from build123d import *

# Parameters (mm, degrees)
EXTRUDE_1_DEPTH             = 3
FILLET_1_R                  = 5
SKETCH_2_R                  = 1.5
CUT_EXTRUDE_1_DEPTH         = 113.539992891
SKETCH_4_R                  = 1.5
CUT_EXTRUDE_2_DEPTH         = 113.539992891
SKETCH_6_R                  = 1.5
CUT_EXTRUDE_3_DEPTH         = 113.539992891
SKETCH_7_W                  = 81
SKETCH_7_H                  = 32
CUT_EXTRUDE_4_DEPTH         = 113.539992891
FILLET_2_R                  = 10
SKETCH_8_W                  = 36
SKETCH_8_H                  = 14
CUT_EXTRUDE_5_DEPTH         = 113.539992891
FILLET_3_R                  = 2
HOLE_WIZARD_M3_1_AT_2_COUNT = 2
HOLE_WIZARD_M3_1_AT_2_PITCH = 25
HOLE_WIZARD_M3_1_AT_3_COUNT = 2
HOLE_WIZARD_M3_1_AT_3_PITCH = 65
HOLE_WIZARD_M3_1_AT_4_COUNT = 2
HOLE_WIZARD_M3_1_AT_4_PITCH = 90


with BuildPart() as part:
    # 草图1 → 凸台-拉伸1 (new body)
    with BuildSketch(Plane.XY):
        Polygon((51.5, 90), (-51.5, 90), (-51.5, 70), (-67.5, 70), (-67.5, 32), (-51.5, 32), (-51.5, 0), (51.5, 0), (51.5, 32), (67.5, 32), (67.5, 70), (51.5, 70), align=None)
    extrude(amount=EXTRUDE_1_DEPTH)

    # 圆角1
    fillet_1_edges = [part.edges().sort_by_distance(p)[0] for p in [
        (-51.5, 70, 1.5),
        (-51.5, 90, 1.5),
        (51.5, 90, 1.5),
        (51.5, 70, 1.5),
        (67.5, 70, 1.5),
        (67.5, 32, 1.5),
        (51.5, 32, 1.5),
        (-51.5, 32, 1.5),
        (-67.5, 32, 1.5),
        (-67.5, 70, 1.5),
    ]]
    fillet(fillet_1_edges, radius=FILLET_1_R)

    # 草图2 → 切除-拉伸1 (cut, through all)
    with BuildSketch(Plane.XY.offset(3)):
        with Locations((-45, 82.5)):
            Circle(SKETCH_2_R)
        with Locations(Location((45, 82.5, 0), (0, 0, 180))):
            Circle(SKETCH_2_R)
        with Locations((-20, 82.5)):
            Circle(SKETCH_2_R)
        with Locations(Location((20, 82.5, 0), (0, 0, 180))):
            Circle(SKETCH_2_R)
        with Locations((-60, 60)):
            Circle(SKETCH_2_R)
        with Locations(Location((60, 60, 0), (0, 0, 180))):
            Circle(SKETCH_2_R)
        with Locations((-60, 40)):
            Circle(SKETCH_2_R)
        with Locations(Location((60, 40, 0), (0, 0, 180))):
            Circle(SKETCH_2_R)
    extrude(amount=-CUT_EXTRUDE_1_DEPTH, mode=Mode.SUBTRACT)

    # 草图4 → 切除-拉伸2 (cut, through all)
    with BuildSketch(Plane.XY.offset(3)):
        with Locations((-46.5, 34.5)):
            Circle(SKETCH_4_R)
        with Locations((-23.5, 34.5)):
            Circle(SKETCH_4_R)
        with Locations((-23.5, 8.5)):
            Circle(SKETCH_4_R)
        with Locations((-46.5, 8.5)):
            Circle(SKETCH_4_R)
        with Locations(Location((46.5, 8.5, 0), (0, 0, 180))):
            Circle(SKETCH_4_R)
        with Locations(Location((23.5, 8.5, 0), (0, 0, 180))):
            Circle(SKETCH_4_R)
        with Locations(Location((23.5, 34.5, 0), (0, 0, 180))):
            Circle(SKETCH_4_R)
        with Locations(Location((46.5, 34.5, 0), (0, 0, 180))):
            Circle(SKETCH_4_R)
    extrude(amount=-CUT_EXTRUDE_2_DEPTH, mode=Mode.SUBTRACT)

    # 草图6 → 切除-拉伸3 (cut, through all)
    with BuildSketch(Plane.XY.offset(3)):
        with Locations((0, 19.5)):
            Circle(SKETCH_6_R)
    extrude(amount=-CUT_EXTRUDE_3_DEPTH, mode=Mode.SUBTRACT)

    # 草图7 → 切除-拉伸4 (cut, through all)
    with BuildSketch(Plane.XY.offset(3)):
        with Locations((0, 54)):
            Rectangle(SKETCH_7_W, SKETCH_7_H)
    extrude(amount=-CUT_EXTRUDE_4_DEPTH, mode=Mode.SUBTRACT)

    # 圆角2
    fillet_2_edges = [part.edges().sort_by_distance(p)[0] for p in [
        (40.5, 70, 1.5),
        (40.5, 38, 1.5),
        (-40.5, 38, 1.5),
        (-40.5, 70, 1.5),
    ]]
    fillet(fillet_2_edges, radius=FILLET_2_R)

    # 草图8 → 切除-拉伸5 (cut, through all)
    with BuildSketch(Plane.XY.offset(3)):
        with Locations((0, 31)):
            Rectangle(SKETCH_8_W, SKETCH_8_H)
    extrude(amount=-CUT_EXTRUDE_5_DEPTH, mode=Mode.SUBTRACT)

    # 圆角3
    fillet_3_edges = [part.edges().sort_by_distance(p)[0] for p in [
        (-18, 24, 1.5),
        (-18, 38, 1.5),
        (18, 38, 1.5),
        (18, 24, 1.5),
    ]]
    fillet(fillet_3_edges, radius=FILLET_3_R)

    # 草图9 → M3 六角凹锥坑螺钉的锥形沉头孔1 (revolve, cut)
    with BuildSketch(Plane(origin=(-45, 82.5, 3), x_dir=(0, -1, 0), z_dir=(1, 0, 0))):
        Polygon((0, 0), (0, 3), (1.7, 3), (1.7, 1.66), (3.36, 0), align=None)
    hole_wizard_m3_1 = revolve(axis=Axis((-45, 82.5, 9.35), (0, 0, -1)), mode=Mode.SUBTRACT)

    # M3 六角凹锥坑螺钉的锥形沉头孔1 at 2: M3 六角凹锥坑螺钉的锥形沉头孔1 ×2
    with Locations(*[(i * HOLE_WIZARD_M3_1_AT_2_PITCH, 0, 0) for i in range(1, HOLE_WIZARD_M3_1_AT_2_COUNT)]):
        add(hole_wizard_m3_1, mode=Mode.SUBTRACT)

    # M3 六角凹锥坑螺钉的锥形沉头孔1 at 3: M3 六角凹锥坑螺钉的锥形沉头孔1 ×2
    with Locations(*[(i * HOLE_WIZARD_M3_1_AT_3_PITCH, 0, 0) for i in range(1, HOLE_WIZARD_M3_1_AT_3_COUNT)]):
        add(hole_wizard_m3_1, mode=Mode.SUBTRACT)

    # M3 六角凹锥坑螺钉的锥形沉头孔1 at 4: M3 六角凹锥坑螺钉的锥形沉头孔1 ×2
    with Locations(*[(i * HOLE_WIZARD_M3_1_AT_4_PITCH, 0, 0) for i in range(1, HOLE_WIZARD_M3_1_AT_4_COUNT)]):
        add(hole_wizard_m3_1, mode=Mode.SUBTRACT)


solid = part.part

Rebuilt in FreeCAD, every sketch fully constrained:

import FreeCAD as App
import Part
import Sketcher
from FreeCAD import Vector
Q = App.Units.Quantity


def edges_at(feature, points):
    """Names of the edges that pass closest to the given points."""
    edges = feature.Shape.Edges
    near = lambda p: min(range(len(edges)), key=lambda i: edges[i].distToShape(Part.Vertex(*p))[0])
    return sorted({f"Edge{near(p) + 1}" for p in points})


def add_polygon(sketch, points):
    """Adds a closed chain of lines whose ends are joined by coincident constraints."""
    first, n = sketch.GeometryCount, len(points)
    for a, b in zip(points, points[1:] + points[:1]):
        sketch.addGeometry(Part.LineSegment(App.Vector(*a, 0), App.Vector(*b, 0)), False)
    for i in range(n):
        sketch.addConstraint(Sketcher.Constraint("Coincident", first + i, 2, first + (i + 1) % n, 1))

doc = App.newDocument("Part")
params = doc.addObject("Spreadsheet::Sheet", "Params")
for row, (alias, value) in enumerate([
    ("sketch1_width", "103 mm"),
    ("sketch1_width2", "16 mm"),
    ("sketch1_height", "20 mm"),
    ("sketch1_height2", "38 mm"),
    ("sketch1_height3", "32 mm"),
    ("pad1_length", "3 mm"),
    ("fillet_radius", "5 mm"),
    ("sketch2_diameter", "3 mm"),
    ("sketch3_diameter", "3 mm"),
    ("sketch4_diameter", "3 mm"),
    ("sketch5_width", "81 mm"),
    ("sketch5_height", "32 mm"),
    ("fillet2_radius", "10 mm"),
    ("sketch6_width", "36 mm"),
    ("sketch6_height", "14 mm"),
    ("fillet3_radius", "2 mm"),
    ("sketch7_height", "3 mm"),
    ("sketch7_width", "1.7 mm"),
    ("sketch7_width2", "3.36 mm"),
    ("groove_angle", "360 deg"),
    ("linearpattern_pitch", "25 mm"),
    ("linearpattern2_pitch", "65 mm"),
    ("linearpattern3_pitch", "90 mm"),
], start=1):
    params.set(f"A{row}", alias)
    params.set(f"B{row}", "=" + value)
    params.setAlias(f"B{row}", alias)

body = doc.addObject("PartDesign::Body", "Body")

sketch1 = body.newObject("Sketcher::SketchObject", "Sketch")
sketch1.AttachmentSupport = (doc.getObject("XY_Plane"), [""])
sketch1.MapMode = "FlatFace"
add_polygon(sketch1, [(51.5, 90), (-51.5, 90), (-51.5, 70), (-67.5, 70), (-67.5, 32), (-51.5, 32), (-51.5, 0), (51.5, 0), (51.5, 32), (67.5, 32), (67.5, 70), (51.5, 70)])
sketch1.addConstraint(Sketcher.Constraint("Horizontal", 0))
sketch1.addConstraint(Sketcher.Constraint("Vertical", 1))
sketch1.addConstraint(Sketcher.Constraint("Horizontal", 2))
sketch1.addConstraint(Sketcher.Constraint("Vertical", 3))
sketch1.addConstraint(Sketcher.Constraint("Horizontal", 4))
sketch1.addConstraint(Sketcher.Constraint("Vertical", 5))
sketch1.addConstraint(Sketcher.Constraint("Horizontal", 6))
sketch1.addConstraint(Sketcher.Constraint("Vertical", 7))
sketch1.addConstraint(Sketcher.Constraint("Horizontal", 8))
sketch1.addConstraint(Sketcher.Constraint("Vertical", 9))
sketch1.addConstraint(Sketcher.Constraint("Horizontal", 10))
sketch1.addConstraint(Sketcher.Constraint("Vertical", 11))
sketch1.addConstraint(Sketcher.Constraint("Symmetric", 5, 2, 6, 2, -1, 1))
sketch1.addConstraint(Sketcher.Constraint("Symmetric", 3, 2, 8, 2, -2))
sketch1.addConstraint(Sketcher.Constraint("Symmetric", 1, 2, 10, 2, -2))
sketch1.addConstraint(Sketcher.Constraint("Vertical", 1, 2, 4, 2))
sketch1.addConstraint(Sketcher.Constraint("DistanceX", 0, 2, 0, 1, 103.0))
sketch1.addConstraint(Sketcher.Constraint("DistanceX", 2, 2, 2, 1, 16.0))
sketch1.addConstraint(Sketcher.Constraint("DistanceY", 1, 2, 1, 1, 20.0))
sketch1.addConstraint(Sketcher.Constraint("DistanceY", 3, 2, 3, 1, 38.0))
sketch1.addConstraint(Sketcher.Constraint("DistanceY", 5, 2, 5, 1, 32.0))
sketch1.setExpression("Constraints[28]", "Params.sketch1_width")
sketch1.setExpression("Constraints[29]", "Params.sketch1_width2")
sketch1.setExpression("Constraints[30]", "Params.sketch1_height")
sketch1.setExpression("Constraints[31]", "Params.sketch1_height2")
sketch1.setExpression("Constraints[32]", "Params.sketch1_height3")
pad1 = body.newObject("PartDesign::Pad", "Pad")
pad1.Profile = sketch1
pad1.setExpression("Length", "Params.pad1_length")
doc.recompute()

fillet = body.newObject("PartDesign::Fillet", "Fillet")
fillet.Base = (pad1, edges_at(pad1, [
    (-51.5, 70, 1.5),
    (-51.5, 90, 1.5),
    (51.5, 90, 1.5),
    (51.5, 70, 1.5),
    (67.5, 70, 1.5),
    (67.5, 32, 1.5),
    (51.5, 32, 1.5),
    (-51.5, 32, 1.5),
    (-67.5, 32, 1.5),
    (-67.5, 70, 1.5),
]))
fillet.setExpression("Radius", "Params.fillet_radius")

sketch2 = body.newObject("Sketcher::SketchObject", "Sketch001")
sketch2.AttachmentSupport = (doc.getObject("XY_Plane"), [""])
sketch2.MapMode = "FlatFace"
sketch2.AttachmentOffset = App.Placement(Vector(0, 0, 3), App.Rotation())
sketch2.addGeometry(Part.Circle(Vector(-45, 82.5, 0), Vector(0, 0, 1), 1.5), False)
sketch2.addGeometry(Part.Circle(Vector(45, 82.5, 0), Vector(0, 0, 1), 1.5), False)
sketch2.addGeometry(Part.Circle(Vector(-20, 82.5, 0), Vector(0, 0, 1), 1.5), False)
sketch2.addGeometry(Part.Circle(Vector(20, 82.5, 0), Vector(0, 0, 1), 1.5), False)
sketch2.addGeometry(Part.Circle(Vector(-60, 60, 0), Vector(0, 0, 1), 1.5), False)
sketch2.addGeometry(Part.Circle(Vector(60, 60, 0), Vector(0, 0, 1), 1.5), False)
sketch2.addGeometry(Part.Circle(Vector(-60, 40, 0), Vector(0, 0, 1), 1.5), False)
sketch2.addGeometry(Part.Circle(Vector(60, 40, 0), Vector(0, 0, 1), 1.5), False)
sketch2.addConstraint(Sketcher.Constraint("Equal", 0, 1))
sketch2.addConstraint(Sketcher.Constraint("Equal", 1, 2))
sketch2.addConstraint(Sketcher.Constraint("Equal", 2, 3))
sketch2.addConstraint(Sketcher.Constraint("Equal", 3, 4))
sketch2.addConstraint(Sketcher.Constraint("Equal", 4, 5))
sketch2.addConstraint(Sketcher.Constraint("Equal", 5, 6))
sketch2.addConstraint(Sketcher.Constraint("Equal", 6, 7))
sketch2.addConstraint(Sketcher.Constraint("Symmetric", 0, 3, 1, 3, -2))
sketch2.addConstraint(Sketcher.Constraint("Symmetric", 2, 3, 3, 3, -2))
sketch2.addConstraint(Sketcher.Constraint("Symmetric", 4, 3, 5, 3, -2))
sketch2.addConstraint(Sketcher.Constraint("Symmetric", 6, 3, 7, 3, -2))
sketch2.addConstraint(Sketcher.Constraint("Horizontal", 1, 3, 2, 3))
sketch2.addConstraint(Sketcher.Constraint("Vertical", 4, 3, 6, 3))
sketch2.addConstraint(Sketcher.Constraint("Diameter", 0, 3.0))
sketch2.addConstraint(Sketcher.Constraint("DistanceX", 0, 3, -1, 1, 45.0))
sketch2.addConstraint(Sketcher.Constraint("DistanceX", 2, 3, -1, 1, 20.0))
sketch2.addConstraint(Sketcher.Constraint("DistanceX", 4, 3, -1, 1, 60.0))
sketch2.addConstraint(Sketcher.Constraint("DistanceY", -1, 1, 4, 3, 60.0))
sketch2.addConstraint(Sketcher.Constraint("DistanceY", -1, 1, 6, 3, 40.0))
sketch2.addConstraint(Sketcher.Constraint("DistanceY", -1, 1, 0, 3, 82.5))
sketch2.setExpression("Constraints[13]", "Params.sketch2_diameter")
pocket1 = body.newObject("PartDesign::Pocket", "Pocket")
pocket1.Profile = sketch2
pocket1.Type = "ThroughAll"

sketch3 = body.newObject("Sketcher::SketchObject", "Sketch002")
sketch3.AttachmentSupport = (doc.getObject("XY_Plane"), [""])
sketch3.MapMode = "FlatFace"
sketch3.AttachmentOffset = App.Placement(Vector(0, 0, 3), App.Rotation())
sketch3.addGeometry(Part.Circle(Vector(-46.5, 34.5, 0), Vector(0, 0, 1), 1.5), False)
sketch3.addGeometry(Part.Circle(Vector(-23.5, 34.5, 0), Vector(0, 0, 1), 1.5), False)
sketch3.addGeometry(Part.Circle(Vector(-23.5, 8.5, 0), Vector(0, 0, 1), 1.5), False)
sketch3.addGeometry(Part.Circle(Vector(-46.5, 8.5, 0), Vector(0, 0, 1), 1.5), False)
sketch3.addGeometry(Part.Circle(Vector(46.5, 8.5, 0), Vector(0, 0, 1), 1.5), False)
sketch3.addGeometry(Part.Circle(Vector(23.5, 8.5, 0), Vector(0, 0, 1), 1.5), False)
sketch3.addGeometry(Part.Circle(Vector(23.5, 34.5, 0), Vector(0, 0, 1), 1.5), False)
sketch3.addGeometry(Part.Circle(Vector(46.5, 34.5, 0), Vector(0, 0, 1), 1.5), False)
sketch3.addConstraint(Sketcher.Constraint("Equal", 0, 1))
sketch3.addConstraint(Sketcher.Constraint("Equal", 1, 2))
sketch3.addConstraint(Sketcher.Constraint("Equal", 2, 3))
sketch3.addConstraint(Sketcher.Constraint("Equal", 3, 4))
sketch3.addConstraint(Sketcher.Constraint("Equal", 4, 5))
sketch3.addConstraint(Sketcher.Constraint("Equal", 5, 6))
sketch3.addConstraint(Sketcher.Constraint("Equal", 6, 7))
sketch3.addConstraint(Sketcher.Constraint("Symmetric", 3, 3, 4, 3, -2))
sketch3.addConstraint(Sketcher.Constraint("Symmetric", 2, 3, 5, 3, -2))
sketch3.addConstraint(Sketcher.Constraint("Symmetric", 1, 3, 6, 3, -2))
sketch3.addConstraint(Sketcher.Constraint("Symmetric", 0, 3, 7, 3, -2))
sketch3.addConstraint(Sketcher.Constraint("Horizontal", 0, 3, 1, 3))
sketch3.addConstraint(Sketcher.Constraint("Horizontal", 2, 3, 3, 3))
sketch3.addConstraint(Sketcher.Constraint("Vertical", 1, 3, 2, 3))
sketch3.addConstraint(Sketcher.Constraint("Vertical", 0, 3, 3, 3))
sketch3.addConstraint(Sketcher.Constraint("Diameter", 0, 3.0))
sketch3.addConstraint(Sketcher.Constraint("DistanceX", 0, 3, 1, 3, 23.0))
sketch3.addConstraint(Sketcher.Constraint("DistanceY", 2, 3, 1, 3, 26.0))
sketch3.addConstraint(Sketcher.Constraint("DistanceX", 2, 3, 4, 3, 70.0))
sketch3.addConstraint(Sketcher.Constraint("DistanceY", -1, 1, 0, 3, 34.5))
sketch3.setExpression("Constraints[15]", "Params.sketch3_diameter")
pocket2 = body.newObject("PartDesign::Pocket", "Pocket001")
pocket2.Profile = sketch3
pocket2.Type = "ThroughAll"

sketch4 = body.newObject("Sketcher::SketchObject", "Sketch003")
sketch4.AttachmentSupport = (doc.getObject("XY_Plane"), [""])
sketch4.MapMode = "FlatFace"
sketch4.AttachmentOffset = App.Placement(Vector(0, 0, 3), App.Rotation())
sketch4.addGeometry(Part.Circle(Vector(0, 19.5, 0), Vector(0, 0, 1), 1.5), False)
sketch4.addConstraint(Sketcher.Constraint("PointOnObject", 0, 3, -2))
sketch4.addConstraint(Sketcher.Constraint("Diameter", 0, 3.0))
sketch4.addConstraint(Sketcher.Constraint("DistanceY", -1, 1, 0, 3, 19.5))
sketch4.setExpression("Constraints[1]", "Params.sketch4_diameter")
pocket3 = body.newObject("PartDesign::Pocket", "Pocket002")
pocket3.Profile = sketch4
pocket3.Type = "ThroughAll"

sketch5 = body.newObject("Sketcher::SketchObject", "Sketch004")
sketch5.AttachmentSupport = (doc.getObject("XY_Plane"), [""])
sketch5.MapMode = "FlatFace"
sketch5.AttachmentOffset = App.Placement(Vector(0, 0, 3), App.Rotation())
add_polygon(sketch5, [(-40.5, 70), (-40.5, 38), (40.5, 38), (40.5, 70)])
sketch5.addConstraint(Sketcher.Constraint("Vertical", 0))
sketch5.addConstraint(Sketcher.Constraint("Horizontal", 1))
sketch5.addConstraint(Sketcher.Constraint("Vertical", 2))
sketch5.addConstraint(Sketcher.Constraint("Horizontal", 3))
sketch5.addConstraint(Sketcher.Constraint("DistanceX", 1, 1, 1, 2, 81.0))
sketch5.addConstraint(Sketcher.Constraint("DistanceY", 0, 2, 0, 1, 32.0))
sketch5.addConstraint(Sketcher.Constraint("DistanceY", -1, 1, 0, 2, 38.0))
sketch5.addConstraint(Sketcher.Constraint("DistanceX", 0, 2, -1, 1, 40.5))
sketch5.setExpression("Constraints[8]", "Params.sketch5_width")
sketch5.setExpression("Constraints[9]", "Params.sketch5_height")
pocket4 = body.newObject("PartDesign::Pocket", "Pocket003")
pocket4.Profile = sketch5
pocket4.Type = "ThroughAll"
doc.recompute()

fillet2 = body.newObject("PartDesign::Fillet", "Fillet001")
fillet2.Base = (pocket4, edges_at(pocket4, [
    (40.5, 70, 1.5),
    (40.5, 38, 1.5),
    (-40.5, 38, 1.5),
    (-40.5, 70, 1.5),
]))
fillet2.setExpression("Radius", "Params.fillet2_radius")

sketch6 = body.newObject("Sketcher::SketchObject", "Sketch005")
sketch6.AttachmentSupport = (doc.getObject("XY_Plane"), [""])
sketch6.MapMode = "FlatFace"
sketch6.AttachmentOffset = App.Placement(Vector(0, 0, 3), App.Rotation())
add_polygon(sketch6, [(-18, 38), (-18, 24), (18, 24), (18, 38)])
sketch6.addConstraint(Sketcher.Constraint("Vertical", 0))
sketch6.addConstraint(Sketcher.Constraint("Horizontal", 1))
sketch6.addConstraint(Sketcher.Constraint("Vertical", 2))
sketch6.addConstraint(Sketcher.Constraint("Horizontal", 3))
sketch6.addConstraint(Sketcher.Constraint("DistanceX", 1, 1, 1, 2, 36.0))
sketch6.addConstraint(Sketcher.Constraint("DistanceY", 0, 2, 0, 1, 14.0))
sketch6.addConstraint(Sketcher.Constraint("DistanceX", 0, 2, -1, 1, 18.0))
sketch6.addConstraint(Sketcher.Constraint("DistanceY", -1, 1, 0, 2, 24.0))
sketch6.setExpression("Constraints[8]", "Params.sketch6_width")
sketch6.setExpression("Constraints[9]", "Params.sketch6_height")
pocket5 = body.newObject("PartDesign::Pocket", "Pocket004")
pocket5.Profile = sketch6
pocket5.Type = "ThroughAll"
doc.recompute()

fillet3 = body.newObject("PartDesign::Fillet", "Fillet002")
fillet3.Base = (pocket5, edges_at(pocket5, [
    (-18, 24, 1.5),
    (-18, 38, 1.5),
    (18, 38, 1.5),
    (18, 24, 1.5),
]))
fillet3.setExpression("Radius", "Params.fillet3_radius")

sketch7 = body.newObject("Sketcher::SketchObject", "Sketch006")
sketch7.AttachmentSupport = (doc.getObject("YZ_Plane"), [""])
sketch7.MapMode = "FlatFace"
sketch7.AttachmentOffset = App.Placement(Vector(0, 0, -45), App.Rotation())
add_polygon(sketch7, [(82.5, 0), (82.5, 3), (79.14, 3), (80.8, 1.34), (80.8, 0)])
sketch7.addGeometry(Part.LineSegment(Vector(82.5, 3, 0), Vector(82.5, 0, 0)), True)
sketch7.addConstraint(Sketcher.Constraint("Vertical", 0))
sketch7.addConstraint(Sketcher.Constraint("Horizontal", 1))
sketch7.addConstraint(Sketcher.Constraint("Vertical", 3))
sketch7.addConstraint(Sketcher.Constraint("Horizontal", 4))
sketch7.addConstraint(Sketcher.Constraint("Vertical", 5))
sketch7.addConstraint(Sketcher.Constraint("Coincident", 5, 1, 0, 2))
sketch7.addConstraint(Sketcher.Constraint("PointOnObject", 3, 2, -1))
sketch7.addConstraint(Sketcher.Constraint("PointOnObject", 5, 2, -1))
sketch7.addConstraint(Sketcher.Constraint("DistanceY", 0, 1, 0, 2, 3.0))
sketch7.addConstraint(Sketcher.Constraint("Angle", 2, Q("-45 deg")))
sketch7.addConstraint(Sketcher.Constraint("DistanceX", 4, 1, 4, 2, 1.7))
sketch7.addConstraint(Sketcher.Constraint("DistanceX", 1, 2, 1, 1, 3.36))
sketch7.addConstraint(Sketcher.Constraint("DistanceX", -1, 1, 0, 2, 82.5))
sketch7.setExpression("Constraints[13]", "Params.sketch7_height")
sketch7.setExpression("Constraints[15]", "Params.sketch7_width")
sketch7.setExpression("Constraints[16]", "Params.sketch7_width2")
groove = body.newObject("PartDesign::Groove", "Groove")
groove.Profile = sketch7
groove.ReferenceAxis = (sketch7, ["Axis0"])
groove.setExpression("Angle", "Params.groove_angle")
doc.recompute()

linearpattern = body.newObject("PartDesign::LinearPattern", "LinearPattern")
linearpattern.Originals = [groove]
linearpattern.Direction = (doc.getObject("X_Axis"), [""])
linearpattern.Mode = "offset"
linearpattern.setExpression("Offset", "Params.linearpattern_pitch")
linearpattern.Occurrences = 2
body.Tip = linearpattern
doc.recompute()

linearpattern2 = body.newObject("PartDesign::LinearPattern", "LinearPattern001")
linearpattern2.Originals = [groove]
linearpattern2.Direction = (doc.getObject("X_Axis"), [""])
linearpattern2.Mode = "offset"
linearpattern2.setExpression("Offset", "Params.linearpattern2_pitch")
linearpattern2.Occurrences = 2
body.Tip = linearpattern2
doc.recompute()

linearpattern3 = body.newObject("PartDesign::LinearPattern", "LinearPattern002")
linearpattern3.Originals = [groove]
linearpattern3.Direction = (doc.getObject("X_Axis"), [""])
linearpattern3.Mode = "offset"
linearpattern3.setExpression("Offset", "Params.linearpattern3_pitch")
linearpattern3.Occurrences = 2
body.Tip = linearpattern3

doc.recompute()
